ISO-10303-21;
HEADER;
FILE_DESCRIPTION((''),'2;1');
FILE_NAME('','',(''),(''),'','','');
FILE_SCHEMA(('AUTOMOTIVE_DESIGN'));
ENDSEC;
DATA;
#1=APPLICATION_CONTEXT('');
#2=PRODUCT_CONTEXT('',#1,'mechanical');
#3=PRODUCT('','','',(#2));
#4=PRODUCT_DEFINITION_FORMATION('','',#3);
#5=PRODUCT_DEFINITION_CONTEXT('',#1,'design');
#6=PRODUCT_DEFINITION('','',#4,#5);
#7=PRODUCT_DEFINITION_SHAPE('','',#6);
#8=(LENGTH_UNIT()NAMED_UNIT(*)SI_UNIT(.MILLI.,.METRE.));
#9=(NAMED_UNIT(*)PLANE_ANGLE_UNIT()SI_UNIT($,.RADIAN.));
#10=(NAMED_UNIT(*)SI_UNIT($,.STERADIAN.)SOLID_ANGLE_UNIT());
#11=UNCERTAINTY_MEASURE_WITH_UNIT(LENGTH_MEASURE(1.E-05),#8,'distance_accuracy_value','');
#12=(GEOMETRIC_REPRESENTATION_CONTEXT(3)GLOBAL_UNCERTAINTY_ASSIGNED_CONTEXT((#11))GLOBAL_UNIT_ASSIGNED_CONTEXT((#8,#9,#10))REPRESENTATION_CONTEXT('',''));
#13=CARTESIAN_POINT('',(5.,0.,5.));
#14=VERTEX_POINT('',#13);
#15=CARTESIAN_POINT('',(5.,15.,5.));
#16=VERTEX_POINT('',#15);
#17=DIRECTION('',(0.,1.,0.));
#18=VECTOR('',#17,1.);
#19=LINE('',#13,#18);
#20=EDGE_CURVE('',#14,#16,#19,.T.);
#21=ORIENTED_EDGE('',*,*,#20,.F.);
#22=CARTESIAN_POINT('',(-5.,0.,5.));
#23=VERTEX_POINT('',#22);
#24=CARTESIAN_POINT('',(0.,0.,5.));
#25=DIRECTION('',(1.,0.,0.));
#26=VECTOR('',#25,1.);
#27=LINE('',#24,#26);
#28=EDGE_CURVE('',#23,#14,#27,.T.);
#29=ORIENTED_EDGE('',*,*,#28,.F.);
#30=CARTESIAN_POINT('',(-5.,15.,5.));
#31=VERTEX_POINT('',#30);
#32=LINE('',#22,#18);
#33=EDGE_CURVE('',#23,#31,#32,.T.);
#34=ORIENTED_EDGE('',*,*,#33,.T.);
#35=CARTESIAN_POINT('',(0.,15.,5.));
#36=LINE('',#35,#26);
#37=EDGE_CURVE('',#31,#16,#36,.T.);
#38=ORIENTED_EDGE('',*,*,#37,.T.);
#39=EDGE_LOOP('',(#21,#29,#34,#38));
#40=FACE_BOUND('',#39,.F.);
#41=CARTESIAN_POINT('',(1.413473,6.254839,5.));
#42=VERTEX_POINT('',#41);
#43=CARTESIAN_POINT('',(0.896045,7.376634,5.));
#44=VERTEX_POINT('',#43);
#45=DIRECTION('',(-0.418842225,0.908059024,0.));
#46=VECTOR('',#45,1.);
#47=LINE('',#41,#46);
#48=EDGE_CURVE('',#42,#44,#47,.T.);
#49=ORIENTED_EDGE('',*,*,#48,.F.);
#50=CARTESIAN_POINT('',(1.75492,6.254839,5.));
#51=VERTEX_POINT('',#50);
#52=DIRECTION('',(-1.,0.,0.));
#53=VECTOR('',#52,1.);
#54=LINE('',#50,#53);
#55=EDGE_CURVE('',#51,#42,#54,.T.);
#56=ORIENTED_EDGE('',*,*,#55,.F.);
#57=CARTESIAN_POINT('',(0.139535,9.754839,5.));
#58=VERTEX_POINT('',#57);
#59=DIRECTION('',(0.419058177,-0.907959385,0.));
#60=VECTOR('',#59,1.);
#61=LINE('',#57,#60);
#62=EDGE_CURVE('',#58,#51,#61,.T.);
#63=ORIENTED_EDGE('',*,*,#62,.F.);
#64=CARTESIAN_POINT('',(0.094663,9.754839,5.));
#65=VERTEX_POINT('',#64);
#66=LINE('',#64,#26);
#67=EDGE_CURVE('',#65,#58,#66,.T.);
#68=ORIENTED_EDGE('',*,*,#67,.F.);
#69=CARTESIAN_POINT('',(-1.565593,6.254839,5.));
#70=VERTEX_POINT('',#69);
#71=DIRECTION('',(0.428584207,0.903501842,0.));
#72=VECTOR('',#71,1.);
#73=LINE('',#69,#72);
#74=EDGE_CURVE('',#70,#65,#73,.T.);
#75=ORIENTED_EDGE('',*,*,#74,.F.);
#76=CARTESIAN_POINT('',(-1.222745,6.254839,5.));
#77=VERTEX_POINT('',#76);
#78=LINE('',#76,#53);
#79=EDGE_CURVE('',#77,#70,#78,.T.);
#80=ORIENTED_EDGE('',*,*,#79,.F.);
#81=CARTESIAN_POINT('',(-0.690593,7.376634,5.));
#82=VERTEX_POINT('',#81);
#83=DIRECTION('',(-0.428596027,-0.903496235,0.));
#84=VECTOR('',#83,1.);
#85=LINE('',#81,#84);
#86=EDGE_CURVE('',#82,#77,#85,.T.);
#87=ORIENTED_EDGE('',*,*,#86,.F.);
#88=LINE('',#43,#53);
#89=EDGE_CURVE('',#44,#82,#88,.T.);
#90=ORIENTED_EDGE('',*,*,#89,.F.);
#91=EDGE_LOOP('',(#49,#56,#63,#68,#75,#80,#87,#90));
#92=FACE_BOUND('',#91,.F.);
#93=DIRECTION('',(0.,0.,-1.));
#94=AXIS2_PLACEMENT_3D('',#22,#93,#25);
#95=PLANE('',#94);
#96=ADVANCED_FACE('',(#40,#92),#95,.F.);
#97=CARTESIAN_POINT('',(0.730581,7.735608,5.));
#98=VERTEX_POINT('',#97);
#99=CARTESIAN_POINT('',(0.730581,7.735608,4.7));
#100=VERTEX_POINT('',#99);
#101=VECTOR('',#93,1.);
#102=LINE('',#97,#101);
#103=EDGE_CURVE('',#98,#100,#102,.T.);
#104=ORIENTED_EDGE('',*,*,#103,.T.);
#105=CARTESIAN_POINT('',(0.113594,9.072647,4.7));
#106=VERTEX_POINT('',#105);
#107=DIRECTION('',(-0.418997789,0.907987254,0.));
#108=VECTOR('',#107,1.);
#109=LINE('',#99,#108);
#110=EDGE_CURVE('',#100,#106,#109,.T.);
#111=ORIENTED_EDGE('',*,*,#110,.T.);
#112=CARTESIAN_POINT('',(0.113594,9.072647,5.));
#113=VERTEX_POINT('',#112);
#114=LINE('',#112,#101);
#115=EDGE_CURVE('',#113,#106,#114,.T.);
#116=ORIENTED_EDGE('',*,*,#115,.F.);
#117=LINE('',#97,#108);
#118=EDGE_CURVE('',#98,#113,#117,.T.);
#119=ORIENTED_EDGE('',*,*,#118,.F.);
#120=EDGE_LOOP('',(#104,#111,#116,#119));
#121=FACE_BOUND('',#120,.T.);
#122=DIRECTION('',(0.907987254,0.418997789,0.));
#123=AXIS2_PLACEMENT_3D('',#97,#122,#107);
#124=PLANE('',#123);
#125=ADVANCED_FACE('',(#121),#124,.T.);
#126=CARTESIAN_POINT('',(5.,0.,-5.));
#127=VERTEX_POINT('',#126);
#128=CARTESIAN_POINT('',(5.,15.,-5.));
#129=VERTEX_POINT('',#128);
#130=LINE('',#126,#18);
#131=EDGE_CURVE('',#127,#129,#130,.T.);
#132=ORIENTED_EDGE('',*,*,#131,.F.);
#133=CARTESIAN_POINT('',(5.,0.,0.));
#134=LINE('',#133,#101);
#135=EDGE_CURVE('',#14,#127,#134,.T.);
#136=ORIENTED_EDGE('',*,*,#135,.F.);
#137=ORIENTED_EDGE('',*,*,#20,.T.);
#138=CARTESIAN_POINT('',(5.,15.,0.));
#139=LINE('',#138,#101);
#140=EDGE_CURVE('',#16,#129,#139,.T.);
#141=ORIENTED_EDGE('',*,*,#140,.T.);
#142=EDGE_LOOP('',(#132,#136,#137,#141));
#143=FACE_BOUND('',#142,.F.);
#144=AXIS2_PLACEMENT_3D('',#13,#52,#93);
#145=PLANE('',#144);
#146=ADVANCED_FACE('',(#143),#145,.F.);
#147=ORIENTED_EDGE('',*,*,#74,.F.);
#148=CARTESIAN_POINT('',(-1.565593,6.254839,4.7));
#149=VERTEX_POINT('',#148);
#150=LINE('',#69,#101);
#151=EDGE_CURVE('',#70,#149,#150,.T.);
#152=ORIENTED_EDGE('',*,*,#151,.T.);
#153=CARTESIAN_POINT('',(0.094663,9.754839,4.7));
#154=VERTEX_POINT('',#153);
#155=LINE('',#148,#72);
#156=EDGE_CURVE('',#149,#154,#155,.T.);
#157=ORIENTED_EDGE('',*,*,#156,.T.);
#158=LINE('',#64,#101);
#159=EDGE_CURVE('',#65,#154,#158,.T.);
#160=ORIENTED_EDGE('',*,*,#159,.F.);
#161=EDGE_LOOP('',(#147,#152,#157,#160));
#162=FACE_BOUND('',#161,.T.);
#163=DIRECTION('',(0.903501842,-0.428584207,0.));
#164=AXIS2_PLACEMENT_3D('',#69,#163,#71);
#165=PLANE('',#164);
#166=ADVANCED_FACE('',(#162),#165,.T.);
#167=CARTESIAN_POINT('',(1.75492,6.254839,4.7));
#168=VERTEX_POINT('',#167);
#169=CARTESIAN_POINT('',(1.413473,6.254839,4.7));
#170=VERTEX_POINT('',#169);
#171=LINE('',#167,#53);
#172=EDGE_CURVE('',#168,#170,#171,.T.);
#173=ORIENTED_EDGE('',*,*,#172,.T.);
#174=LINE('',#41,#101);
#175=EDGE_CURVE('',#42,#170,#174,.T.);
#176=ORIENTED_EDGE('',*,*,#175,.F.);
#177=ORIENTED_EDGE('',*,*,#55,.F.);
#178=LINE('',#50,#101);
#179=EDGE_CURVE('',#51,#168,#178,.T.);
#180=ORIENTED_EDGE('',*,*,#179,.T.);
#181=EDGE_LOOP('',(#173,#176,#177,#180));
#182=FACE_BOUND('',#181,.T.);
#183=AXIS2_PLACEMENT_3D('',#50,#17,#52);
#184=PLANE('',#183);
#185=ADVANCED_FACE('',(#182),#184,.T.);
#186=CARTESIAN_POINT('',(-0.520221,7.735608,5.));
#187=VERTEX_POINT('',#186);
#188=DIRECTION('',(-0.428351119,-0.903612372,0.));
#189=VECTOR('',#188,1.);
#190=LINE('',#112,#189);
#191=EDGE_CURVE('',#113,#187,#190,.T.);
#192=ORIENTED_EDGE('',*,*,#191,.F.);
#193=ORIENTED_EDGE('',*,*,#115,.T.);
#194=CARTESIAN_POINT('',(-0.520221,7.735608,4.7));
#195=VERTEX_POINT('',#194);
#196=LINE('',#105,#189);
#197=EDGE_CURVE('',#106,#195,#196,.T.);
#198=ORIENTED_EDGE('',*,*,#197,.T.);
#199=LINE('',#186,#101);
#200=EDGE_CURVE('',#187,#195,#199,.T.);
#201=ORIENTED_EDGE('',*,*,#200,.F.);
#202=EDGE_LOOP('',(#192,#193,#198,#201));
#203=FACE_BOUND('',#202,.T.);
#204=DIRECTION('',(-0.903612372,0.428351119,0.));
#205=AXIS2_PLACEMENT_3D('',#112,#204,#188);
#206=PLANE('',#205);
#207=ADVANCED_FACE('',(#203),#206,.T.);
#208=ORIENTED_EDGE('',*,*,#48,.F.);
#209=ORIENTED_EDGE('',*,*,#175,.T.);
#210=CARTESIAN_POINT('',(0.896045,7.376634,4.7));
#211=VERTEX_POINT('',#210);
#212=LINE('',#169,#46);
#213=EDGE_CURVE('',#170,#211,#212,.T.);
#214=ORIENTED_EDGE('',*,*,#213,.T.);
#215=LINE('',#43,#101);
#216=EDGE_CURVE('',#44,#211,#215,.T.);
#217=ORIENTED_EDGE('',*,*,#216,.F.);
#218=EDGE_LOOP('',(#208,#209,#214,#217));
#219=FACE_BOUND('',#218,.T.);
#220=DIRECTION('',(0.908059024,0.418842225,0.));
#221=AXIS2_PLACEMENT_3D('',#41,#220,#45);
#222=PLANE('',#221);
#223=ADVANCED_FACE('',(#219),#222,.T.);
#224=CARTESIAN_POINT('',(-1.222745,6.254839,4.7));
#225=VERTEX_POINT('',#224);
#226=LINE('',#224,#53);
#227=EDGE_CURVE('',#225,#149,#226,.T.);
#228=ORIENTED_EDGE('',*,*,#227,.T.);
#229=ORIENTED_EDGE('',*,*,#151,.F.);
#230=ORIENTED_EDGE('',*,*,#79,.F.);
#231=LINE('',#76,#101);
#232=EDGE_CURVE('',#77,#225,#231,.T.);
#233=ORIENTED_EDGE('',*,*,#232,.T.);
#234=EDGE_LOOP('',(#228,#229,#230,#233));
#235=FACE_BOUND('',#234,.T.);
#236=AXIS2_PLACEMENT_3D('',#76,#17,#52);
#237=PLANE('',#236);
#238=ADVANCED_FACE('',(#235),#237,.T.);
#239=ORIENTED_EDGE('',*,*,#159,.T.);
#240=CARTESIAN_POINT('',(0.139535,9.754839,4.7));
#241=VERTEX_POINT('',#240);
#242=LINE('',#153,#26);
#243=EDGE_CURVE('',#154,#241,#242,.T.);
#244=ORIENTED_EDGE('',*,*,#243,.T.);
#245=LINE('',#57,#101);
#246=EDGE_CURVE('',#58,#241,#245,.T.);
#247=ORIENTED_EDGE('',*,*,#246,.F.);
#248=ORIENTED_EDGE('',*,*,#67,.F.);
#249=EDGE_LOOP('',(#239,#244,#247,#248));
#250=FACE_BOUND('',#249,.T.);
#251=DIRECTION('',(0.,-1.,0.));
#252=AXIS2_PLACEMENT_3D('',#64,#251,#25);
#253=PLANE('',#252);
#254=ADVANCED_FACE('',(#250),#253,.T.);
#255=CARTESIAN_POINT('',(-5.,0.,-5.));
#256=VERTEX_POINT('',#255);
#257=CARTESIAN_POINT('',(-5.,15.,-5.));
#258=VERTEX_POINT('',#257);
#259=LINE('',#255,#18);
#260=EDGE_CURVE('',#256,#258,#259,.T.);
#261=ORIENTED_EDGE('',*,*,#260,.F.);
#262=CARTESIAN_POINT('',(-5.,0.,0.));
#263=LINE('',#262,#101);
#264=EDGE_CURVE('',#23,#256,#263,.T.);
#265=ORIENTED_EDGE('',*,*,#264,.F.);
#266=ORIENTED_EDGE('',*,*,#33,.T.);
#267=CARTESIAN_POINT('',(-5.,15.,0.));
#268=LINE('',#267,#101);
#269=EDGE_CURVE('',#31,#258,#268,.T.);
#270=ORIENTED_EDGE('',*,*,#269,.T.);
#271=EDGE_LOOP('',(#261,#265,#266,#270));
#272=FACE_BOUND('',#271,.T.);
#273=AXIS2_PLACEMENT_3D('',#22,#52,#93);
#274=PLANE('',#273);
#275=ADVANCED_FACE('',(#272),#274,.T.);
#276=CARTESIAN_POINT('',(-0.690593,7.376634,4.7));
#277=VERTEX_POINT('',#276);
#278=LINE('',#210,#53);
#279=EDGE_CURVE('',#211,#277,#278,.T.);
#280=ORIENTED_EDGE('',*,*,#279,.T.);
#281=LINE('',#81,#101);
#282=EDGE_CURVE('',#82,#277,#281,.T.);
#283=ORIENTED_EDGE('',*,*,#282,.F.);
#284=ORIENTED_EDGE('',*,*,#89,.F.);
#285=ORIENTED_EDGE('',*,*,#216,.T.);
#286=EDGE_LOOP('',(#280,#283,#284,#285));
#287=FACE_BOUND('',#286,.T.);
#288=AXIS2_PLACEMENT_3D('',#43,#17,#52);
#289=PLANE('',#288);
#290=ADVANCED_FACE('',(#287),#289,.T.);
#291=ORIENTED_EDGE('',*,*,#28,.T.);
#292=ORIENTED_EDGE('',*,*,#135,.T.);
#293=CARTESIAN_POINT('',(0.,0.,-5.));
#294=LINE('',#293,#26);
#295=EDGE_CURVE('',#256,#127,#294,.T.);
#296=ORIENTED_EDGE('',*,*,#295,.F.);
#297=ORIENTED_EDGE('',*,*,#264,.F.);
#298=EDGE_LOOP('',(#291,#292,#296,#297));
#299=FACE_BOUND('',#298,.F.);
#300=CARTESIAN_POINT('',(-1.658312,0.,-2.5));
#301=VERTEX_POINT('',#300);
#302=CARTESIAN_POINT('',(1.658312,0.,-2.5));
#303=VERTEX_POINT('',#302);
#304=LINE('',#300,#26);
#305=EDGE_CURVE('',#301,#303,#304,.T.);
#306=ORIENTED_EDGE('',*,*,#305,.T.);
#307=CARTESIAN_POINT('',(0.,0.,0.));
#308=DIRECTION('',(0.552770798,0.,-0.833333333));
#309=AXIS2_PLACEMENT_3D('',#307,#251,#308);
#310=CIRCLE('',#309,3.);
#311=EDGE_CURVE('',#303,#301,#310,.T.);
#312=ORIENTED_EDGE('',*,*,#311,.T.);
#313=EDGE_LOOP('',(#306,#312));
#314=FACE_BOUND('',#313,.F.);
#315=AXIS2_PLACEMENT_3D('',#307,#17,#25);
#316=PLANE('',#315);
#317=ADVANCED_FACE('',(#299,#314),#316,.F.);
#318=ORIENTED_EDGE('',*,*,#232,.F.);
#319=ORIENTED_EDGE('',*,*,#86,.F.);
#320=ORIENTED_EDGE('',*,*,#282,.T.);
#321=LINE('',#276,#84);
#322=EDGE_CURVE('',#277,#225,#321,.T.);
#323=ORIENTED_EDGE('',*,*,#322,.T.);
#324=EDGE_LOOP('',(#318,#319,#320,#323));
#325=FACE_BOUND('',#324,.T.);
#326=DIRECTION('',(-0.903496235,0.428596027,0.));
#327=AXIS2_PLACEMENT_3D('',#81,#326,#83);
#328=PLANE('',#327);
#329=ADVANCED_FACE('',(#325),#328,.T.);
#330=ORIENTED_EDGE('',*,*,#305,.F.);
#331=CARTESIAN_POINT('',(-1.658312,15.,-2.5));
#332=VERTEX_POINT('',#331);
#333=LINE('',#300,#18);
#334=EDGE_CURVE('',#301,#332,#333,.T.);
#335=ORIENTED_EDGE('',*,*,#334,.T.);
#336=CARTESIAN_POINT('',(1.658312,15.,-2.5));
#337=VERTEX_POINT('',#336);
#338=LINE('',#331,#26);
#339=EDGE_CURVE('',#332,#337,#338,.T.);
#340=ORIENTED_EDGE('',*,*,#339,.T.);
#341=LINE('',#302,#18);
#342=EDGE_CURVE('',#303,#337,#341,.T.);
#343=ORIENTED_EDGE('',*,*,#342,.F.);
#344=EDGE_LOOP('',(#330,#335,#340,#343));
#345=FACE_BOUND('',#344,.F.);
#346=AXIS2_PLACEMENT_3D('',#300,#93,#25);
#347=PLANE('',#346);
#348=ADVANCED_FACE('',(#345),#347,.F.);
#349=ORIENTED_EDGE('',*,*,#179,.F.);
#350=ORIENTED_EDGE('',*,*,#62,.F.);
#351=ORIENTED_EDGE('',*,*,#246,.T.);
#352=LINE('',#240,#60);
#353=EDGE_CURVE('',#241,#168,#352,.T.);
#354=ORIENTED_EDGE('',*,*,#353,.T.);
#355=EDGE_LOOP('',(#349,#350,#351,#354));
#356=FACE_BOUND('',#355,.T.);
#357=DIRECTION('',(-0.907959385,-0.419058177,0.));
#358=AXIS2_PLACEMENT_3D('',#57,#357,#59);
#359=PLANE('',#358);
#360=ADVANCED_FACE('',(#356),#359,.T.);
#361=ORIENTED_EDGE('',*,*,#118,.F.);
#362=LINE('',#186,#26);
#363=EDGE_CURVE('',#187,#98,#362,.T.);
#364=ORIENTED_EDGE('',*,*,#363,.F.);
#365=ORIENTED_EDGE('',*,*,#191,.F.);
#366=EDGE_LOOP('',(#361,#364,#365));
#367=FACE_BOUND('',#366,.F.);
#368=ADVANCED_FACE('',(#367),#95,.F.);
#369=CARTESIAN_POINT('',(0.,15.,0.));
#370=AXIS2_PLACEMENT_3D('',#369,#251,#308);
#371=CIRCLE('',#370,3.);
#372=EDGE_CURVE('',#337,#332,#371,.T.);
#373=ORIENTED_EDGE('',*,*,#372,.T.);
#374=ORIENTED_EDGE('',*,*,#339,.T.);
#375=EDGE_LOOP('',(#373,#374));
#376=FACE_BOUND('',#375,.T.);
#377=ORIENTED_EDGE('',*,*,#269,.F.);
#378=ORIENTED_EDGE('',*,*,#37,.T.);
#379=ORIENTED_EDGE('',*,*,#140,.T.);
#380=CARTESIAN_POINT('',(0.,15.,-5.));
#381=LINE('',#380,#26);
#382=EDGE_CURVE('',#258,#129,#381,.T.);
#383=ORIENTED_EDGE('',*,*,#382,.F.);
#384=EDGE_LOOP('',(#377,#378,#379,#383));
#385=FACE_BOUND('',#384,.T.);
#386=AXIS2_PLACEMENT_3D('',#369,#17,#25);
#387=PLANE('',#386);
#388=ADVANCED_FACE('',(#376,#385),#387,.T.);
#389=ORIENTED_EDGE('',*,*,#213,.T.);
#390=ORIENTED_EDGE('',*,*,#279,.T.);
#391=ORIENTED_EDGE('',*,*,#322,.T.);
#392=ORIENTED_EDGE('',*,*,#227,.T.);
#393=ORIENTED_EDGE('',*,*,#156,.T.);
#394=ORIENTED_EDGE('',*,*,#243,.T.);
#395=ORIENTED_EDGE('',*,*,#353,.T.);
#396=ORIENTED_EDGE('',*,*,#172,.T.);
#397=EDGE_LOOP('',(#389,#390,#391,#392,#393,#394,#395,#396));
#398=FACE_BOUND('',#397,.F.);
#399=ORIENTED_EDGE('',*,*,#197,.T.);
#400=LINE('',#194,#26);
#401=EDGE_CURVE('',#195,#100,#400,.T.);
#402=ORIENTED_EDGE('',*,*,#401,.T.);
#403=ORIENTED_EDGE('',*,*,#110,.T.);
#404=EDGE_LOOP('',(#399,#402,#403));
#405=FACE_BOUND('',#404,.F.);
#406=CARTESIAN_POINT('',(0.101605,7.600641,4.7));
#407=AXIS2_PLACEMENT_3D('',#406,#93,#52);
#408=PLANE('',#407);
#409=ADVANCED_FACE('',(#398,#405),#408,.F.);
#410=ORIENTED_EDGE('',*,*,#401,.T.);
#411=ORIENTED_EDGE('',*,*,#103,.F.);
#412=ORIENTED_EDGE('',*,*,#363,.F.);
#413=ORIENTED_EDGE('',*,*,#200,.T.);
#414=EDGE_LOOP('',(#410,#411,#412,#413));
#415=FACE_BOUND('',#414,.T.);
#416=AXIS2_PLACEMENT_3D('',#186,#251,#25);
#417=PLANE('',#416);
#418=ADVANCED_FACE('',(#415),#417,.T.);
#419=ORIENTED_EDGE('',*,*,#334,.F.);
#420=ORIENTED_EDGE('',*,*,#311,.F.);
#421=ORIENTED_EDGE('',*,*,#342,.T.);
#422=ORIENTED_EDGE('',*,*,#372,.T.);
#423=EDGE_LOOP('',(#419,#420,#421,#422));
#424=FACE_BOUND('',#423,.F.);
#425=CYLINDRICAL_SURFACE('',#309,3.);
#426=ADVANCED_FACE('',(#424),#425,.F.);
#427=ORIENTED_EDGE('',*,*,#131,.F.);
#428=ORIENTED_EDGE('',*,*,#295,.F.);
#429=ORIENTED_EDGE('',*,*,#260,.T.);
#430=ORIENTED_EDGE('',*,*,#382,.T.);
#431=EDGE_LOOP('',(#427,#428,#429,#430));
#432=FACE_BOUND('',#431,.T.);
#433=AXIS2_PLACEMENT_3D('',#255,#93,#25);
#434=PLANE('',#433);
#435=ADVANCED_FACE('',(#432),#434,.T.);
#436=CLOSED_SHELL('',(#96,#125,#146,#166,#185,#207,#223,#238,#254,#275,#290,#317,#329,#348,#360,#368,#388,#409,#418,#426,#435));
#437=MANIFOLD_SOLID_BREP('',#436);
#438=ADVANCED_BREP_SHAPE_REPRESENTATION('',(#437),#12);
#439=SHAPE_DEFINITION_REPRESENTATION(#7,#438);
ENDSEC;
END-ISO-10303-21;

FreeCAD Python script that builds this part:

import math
import FreeCAD as App
import Part
import Sketcher


def add_polygon(sketch, points):
    """Adds a closed chain of lines whose ends are joined by coincident constraints."""
    first, n = sketch.GeometryCount, len(points)
    for a, b in zip(points, points[1:] + points[:1]):
        sketch.addGeometry(Part.LineSegment(App.Vector(*a, 0), App.Vector(*b, 0)), False)
    for i in range(n):
        sketch.addConstraint(Sketcher.Constraint("Coincident", first + i, 2, first + (i + 1) % n, 1))

doc = App.newDocument("Part")
body = doc.addObject("PartDesign::Body", "Body")

sketch1 = body.newObject("Sketcher::SketchObject", "Sketch")
sketch1.AttachmentSupport = (doc.getObject("XZ_Plane"), [""])
sketch1.MapMode = "FlatFace"
add_polygon(sketch1, [(-5, -5), (-5, 5), (5, 5), (5, -5)])
sketch1.addGeometry(Part.ArcOfCircle(Part.Circle(App.Vector(0, 0, 0), App.Vector(0, 0, 1), 3), math.radians(-56.44269), math.radians(236.44269)), False)
sketch1.addGeometry(Part.LineSegment(App.Vector(-1.658312, -2.5, 0), App.Vector(1.658312, -2.5, 0)), False)
sketch1.addConstraint(Sketcher.Constraint("Coincident", 4, 1, 5, 2))
sketch1.addConstraint(Sketcher.Constraint("Coincident", 5, 1, 4, 2))
sketch1.addConstraint(Sketcher.Constraint("Vertical", 0))
sketch1.addConstraint(Sketcher.Constraint("Horizontal", 1))
sketch1.addConstraint(Sketcher.Constraint("Vertical", 2))
sketch1.addConstraint(Sketcher.Constraint("Horizontal", 3))
sketch1.addConstraint(Sketcher.Constraint("Horizontal", 5))
sketch1.addConstraint(Sketcher.Constraint("Coincident", 4, 3, -1, 1))
sketch1.addConstraint(Sketcher.Constraint("Symmetric", 0, 2, 2, 2, -1, 1))
sketch1.addConstraint(Sketcher.Constraint("Equal", 3, 0))
sketch1.addConstraint(Sketcher.Constraint("Radius", 4, 3.0))
sketch1.addConstraint(Sketcher.Constraint("DistanceX", 1, 1, 1, 2, 10.0))
sketch1.addConstraint(Sketcher.Constraint("DistanceY", 4, 1, -1, 1, 2.5))
pad1 = body.newObject("PartDesign::Pad", "Pad")
pad1.Profile = sketch1
pad1.Length = 15
pad1.Reversed = True

sketch2 = body.newObject("Sketcher::SketchObject", "Sketch001")
sketch2.AttachmentSupport = (doc.getObject("XY_Plane"), [""])
sketch2.MapMode = "FlatFace"
sketch2.AttachmentOffset = App.Placement(App.Vector(0, 0, 5), App.Rotation())
add_polygon(sketch2, [(1.75492, 6.254839), (0.139535, 9.754839), (0.094663, 9.754839), (-1.565593, 6.254839), (-1.222745, 6.254839), (-0.690593, 7.376634), (0.896045, 7.376634), (1.413473, 6.254839)])
add_polygon(sketch2, [(0.113594, 9.072647), (0.730581, 7.735608), (-0.520221, 7.735608)])
sketch2.addConstraint(Sketcher.Constraint("Horizontal", 1))
sketch2.addConstraint(Sketcher.Constraint("Horizontal", 3))
sketch2.addConstraint(Sketcher.Constraint("Horizontal", 5))
sketch2.addConstraint(Sketcher.Constraint("Horizontal", 7))
sketch2.addConstraint(Sketcher.Constraint("Horizontal", 9))
sketch2.addConstraint(Sketcher.Constraint("Horizontal", 3, 2, 6, 2))
sketch2.addConstraint(Sketcher.Constraint("DistanceY", 2, 2, 1, 2, 3.5))
sketch2.addConstraint(Sketcher.Constraint("DistanceX", 9, 2, 9, 1, 1.250801))
sketch2.addConstraint(Sketcher.Constraint("DistanceX", 2, 2, 4, 2, 0.875))
sketch2.addConstraint(Sketcher.Constraint("DistanceX", 1, 2, 1, 1, 0.044872))
sketch2.addConstraint(Sketcher.Constraint("DistanceX", 3, 1, 3, 2, 0.342849))
sketch2.addConstraint(Sketcher.Constraint("DistanceX", 5, 1, 5, 2, 1.586639))
sketch2.addConstraint(Sketcher.Constraint("Distance", 8, 1.472531))
sketch2.addConstraint(Sketcher.Constraint("Distance", 10, 1.47966))
sketch2.addConstraint(Sketcher.Constraint("DistanceX", 7, 1, 7, 2, 0.341446))
sketch2.addConstraint(Sketcher.Constraint("DistanceY", -1, 1, 0, 2, 9.754839))
sketch2.addConstraint(Sketcher.Constraint("DistanceX", -1, 1, 7, 2, 1.75492))
sketch2.addConstraint(Sketcher.Constraint("DistanceX", -1, 1, 8, 2, 0.730581))
sketch2.addConstraint(Sketcher.Constraint("DistanceX", 2, 2, 0, 2, 1.705128))
sketch2.addConstraint(Sketcher.Constraint("DistanceX", 0, 2, 6, 2, 1.273938))
sketch2.addConstraint(Sketcher.Constraint("DistanceY", 6, 2, 8, 2, 1.480769))
sketch2.addConstraint(Sketcher.Constraint("Distance", 4, 1.241615))
pocket1 = body.newObject("PartDesign::Pocket", "Pocket")
pocket1.Profile = sketch2
pocket1.Length = 0.3

doc.recompute()
